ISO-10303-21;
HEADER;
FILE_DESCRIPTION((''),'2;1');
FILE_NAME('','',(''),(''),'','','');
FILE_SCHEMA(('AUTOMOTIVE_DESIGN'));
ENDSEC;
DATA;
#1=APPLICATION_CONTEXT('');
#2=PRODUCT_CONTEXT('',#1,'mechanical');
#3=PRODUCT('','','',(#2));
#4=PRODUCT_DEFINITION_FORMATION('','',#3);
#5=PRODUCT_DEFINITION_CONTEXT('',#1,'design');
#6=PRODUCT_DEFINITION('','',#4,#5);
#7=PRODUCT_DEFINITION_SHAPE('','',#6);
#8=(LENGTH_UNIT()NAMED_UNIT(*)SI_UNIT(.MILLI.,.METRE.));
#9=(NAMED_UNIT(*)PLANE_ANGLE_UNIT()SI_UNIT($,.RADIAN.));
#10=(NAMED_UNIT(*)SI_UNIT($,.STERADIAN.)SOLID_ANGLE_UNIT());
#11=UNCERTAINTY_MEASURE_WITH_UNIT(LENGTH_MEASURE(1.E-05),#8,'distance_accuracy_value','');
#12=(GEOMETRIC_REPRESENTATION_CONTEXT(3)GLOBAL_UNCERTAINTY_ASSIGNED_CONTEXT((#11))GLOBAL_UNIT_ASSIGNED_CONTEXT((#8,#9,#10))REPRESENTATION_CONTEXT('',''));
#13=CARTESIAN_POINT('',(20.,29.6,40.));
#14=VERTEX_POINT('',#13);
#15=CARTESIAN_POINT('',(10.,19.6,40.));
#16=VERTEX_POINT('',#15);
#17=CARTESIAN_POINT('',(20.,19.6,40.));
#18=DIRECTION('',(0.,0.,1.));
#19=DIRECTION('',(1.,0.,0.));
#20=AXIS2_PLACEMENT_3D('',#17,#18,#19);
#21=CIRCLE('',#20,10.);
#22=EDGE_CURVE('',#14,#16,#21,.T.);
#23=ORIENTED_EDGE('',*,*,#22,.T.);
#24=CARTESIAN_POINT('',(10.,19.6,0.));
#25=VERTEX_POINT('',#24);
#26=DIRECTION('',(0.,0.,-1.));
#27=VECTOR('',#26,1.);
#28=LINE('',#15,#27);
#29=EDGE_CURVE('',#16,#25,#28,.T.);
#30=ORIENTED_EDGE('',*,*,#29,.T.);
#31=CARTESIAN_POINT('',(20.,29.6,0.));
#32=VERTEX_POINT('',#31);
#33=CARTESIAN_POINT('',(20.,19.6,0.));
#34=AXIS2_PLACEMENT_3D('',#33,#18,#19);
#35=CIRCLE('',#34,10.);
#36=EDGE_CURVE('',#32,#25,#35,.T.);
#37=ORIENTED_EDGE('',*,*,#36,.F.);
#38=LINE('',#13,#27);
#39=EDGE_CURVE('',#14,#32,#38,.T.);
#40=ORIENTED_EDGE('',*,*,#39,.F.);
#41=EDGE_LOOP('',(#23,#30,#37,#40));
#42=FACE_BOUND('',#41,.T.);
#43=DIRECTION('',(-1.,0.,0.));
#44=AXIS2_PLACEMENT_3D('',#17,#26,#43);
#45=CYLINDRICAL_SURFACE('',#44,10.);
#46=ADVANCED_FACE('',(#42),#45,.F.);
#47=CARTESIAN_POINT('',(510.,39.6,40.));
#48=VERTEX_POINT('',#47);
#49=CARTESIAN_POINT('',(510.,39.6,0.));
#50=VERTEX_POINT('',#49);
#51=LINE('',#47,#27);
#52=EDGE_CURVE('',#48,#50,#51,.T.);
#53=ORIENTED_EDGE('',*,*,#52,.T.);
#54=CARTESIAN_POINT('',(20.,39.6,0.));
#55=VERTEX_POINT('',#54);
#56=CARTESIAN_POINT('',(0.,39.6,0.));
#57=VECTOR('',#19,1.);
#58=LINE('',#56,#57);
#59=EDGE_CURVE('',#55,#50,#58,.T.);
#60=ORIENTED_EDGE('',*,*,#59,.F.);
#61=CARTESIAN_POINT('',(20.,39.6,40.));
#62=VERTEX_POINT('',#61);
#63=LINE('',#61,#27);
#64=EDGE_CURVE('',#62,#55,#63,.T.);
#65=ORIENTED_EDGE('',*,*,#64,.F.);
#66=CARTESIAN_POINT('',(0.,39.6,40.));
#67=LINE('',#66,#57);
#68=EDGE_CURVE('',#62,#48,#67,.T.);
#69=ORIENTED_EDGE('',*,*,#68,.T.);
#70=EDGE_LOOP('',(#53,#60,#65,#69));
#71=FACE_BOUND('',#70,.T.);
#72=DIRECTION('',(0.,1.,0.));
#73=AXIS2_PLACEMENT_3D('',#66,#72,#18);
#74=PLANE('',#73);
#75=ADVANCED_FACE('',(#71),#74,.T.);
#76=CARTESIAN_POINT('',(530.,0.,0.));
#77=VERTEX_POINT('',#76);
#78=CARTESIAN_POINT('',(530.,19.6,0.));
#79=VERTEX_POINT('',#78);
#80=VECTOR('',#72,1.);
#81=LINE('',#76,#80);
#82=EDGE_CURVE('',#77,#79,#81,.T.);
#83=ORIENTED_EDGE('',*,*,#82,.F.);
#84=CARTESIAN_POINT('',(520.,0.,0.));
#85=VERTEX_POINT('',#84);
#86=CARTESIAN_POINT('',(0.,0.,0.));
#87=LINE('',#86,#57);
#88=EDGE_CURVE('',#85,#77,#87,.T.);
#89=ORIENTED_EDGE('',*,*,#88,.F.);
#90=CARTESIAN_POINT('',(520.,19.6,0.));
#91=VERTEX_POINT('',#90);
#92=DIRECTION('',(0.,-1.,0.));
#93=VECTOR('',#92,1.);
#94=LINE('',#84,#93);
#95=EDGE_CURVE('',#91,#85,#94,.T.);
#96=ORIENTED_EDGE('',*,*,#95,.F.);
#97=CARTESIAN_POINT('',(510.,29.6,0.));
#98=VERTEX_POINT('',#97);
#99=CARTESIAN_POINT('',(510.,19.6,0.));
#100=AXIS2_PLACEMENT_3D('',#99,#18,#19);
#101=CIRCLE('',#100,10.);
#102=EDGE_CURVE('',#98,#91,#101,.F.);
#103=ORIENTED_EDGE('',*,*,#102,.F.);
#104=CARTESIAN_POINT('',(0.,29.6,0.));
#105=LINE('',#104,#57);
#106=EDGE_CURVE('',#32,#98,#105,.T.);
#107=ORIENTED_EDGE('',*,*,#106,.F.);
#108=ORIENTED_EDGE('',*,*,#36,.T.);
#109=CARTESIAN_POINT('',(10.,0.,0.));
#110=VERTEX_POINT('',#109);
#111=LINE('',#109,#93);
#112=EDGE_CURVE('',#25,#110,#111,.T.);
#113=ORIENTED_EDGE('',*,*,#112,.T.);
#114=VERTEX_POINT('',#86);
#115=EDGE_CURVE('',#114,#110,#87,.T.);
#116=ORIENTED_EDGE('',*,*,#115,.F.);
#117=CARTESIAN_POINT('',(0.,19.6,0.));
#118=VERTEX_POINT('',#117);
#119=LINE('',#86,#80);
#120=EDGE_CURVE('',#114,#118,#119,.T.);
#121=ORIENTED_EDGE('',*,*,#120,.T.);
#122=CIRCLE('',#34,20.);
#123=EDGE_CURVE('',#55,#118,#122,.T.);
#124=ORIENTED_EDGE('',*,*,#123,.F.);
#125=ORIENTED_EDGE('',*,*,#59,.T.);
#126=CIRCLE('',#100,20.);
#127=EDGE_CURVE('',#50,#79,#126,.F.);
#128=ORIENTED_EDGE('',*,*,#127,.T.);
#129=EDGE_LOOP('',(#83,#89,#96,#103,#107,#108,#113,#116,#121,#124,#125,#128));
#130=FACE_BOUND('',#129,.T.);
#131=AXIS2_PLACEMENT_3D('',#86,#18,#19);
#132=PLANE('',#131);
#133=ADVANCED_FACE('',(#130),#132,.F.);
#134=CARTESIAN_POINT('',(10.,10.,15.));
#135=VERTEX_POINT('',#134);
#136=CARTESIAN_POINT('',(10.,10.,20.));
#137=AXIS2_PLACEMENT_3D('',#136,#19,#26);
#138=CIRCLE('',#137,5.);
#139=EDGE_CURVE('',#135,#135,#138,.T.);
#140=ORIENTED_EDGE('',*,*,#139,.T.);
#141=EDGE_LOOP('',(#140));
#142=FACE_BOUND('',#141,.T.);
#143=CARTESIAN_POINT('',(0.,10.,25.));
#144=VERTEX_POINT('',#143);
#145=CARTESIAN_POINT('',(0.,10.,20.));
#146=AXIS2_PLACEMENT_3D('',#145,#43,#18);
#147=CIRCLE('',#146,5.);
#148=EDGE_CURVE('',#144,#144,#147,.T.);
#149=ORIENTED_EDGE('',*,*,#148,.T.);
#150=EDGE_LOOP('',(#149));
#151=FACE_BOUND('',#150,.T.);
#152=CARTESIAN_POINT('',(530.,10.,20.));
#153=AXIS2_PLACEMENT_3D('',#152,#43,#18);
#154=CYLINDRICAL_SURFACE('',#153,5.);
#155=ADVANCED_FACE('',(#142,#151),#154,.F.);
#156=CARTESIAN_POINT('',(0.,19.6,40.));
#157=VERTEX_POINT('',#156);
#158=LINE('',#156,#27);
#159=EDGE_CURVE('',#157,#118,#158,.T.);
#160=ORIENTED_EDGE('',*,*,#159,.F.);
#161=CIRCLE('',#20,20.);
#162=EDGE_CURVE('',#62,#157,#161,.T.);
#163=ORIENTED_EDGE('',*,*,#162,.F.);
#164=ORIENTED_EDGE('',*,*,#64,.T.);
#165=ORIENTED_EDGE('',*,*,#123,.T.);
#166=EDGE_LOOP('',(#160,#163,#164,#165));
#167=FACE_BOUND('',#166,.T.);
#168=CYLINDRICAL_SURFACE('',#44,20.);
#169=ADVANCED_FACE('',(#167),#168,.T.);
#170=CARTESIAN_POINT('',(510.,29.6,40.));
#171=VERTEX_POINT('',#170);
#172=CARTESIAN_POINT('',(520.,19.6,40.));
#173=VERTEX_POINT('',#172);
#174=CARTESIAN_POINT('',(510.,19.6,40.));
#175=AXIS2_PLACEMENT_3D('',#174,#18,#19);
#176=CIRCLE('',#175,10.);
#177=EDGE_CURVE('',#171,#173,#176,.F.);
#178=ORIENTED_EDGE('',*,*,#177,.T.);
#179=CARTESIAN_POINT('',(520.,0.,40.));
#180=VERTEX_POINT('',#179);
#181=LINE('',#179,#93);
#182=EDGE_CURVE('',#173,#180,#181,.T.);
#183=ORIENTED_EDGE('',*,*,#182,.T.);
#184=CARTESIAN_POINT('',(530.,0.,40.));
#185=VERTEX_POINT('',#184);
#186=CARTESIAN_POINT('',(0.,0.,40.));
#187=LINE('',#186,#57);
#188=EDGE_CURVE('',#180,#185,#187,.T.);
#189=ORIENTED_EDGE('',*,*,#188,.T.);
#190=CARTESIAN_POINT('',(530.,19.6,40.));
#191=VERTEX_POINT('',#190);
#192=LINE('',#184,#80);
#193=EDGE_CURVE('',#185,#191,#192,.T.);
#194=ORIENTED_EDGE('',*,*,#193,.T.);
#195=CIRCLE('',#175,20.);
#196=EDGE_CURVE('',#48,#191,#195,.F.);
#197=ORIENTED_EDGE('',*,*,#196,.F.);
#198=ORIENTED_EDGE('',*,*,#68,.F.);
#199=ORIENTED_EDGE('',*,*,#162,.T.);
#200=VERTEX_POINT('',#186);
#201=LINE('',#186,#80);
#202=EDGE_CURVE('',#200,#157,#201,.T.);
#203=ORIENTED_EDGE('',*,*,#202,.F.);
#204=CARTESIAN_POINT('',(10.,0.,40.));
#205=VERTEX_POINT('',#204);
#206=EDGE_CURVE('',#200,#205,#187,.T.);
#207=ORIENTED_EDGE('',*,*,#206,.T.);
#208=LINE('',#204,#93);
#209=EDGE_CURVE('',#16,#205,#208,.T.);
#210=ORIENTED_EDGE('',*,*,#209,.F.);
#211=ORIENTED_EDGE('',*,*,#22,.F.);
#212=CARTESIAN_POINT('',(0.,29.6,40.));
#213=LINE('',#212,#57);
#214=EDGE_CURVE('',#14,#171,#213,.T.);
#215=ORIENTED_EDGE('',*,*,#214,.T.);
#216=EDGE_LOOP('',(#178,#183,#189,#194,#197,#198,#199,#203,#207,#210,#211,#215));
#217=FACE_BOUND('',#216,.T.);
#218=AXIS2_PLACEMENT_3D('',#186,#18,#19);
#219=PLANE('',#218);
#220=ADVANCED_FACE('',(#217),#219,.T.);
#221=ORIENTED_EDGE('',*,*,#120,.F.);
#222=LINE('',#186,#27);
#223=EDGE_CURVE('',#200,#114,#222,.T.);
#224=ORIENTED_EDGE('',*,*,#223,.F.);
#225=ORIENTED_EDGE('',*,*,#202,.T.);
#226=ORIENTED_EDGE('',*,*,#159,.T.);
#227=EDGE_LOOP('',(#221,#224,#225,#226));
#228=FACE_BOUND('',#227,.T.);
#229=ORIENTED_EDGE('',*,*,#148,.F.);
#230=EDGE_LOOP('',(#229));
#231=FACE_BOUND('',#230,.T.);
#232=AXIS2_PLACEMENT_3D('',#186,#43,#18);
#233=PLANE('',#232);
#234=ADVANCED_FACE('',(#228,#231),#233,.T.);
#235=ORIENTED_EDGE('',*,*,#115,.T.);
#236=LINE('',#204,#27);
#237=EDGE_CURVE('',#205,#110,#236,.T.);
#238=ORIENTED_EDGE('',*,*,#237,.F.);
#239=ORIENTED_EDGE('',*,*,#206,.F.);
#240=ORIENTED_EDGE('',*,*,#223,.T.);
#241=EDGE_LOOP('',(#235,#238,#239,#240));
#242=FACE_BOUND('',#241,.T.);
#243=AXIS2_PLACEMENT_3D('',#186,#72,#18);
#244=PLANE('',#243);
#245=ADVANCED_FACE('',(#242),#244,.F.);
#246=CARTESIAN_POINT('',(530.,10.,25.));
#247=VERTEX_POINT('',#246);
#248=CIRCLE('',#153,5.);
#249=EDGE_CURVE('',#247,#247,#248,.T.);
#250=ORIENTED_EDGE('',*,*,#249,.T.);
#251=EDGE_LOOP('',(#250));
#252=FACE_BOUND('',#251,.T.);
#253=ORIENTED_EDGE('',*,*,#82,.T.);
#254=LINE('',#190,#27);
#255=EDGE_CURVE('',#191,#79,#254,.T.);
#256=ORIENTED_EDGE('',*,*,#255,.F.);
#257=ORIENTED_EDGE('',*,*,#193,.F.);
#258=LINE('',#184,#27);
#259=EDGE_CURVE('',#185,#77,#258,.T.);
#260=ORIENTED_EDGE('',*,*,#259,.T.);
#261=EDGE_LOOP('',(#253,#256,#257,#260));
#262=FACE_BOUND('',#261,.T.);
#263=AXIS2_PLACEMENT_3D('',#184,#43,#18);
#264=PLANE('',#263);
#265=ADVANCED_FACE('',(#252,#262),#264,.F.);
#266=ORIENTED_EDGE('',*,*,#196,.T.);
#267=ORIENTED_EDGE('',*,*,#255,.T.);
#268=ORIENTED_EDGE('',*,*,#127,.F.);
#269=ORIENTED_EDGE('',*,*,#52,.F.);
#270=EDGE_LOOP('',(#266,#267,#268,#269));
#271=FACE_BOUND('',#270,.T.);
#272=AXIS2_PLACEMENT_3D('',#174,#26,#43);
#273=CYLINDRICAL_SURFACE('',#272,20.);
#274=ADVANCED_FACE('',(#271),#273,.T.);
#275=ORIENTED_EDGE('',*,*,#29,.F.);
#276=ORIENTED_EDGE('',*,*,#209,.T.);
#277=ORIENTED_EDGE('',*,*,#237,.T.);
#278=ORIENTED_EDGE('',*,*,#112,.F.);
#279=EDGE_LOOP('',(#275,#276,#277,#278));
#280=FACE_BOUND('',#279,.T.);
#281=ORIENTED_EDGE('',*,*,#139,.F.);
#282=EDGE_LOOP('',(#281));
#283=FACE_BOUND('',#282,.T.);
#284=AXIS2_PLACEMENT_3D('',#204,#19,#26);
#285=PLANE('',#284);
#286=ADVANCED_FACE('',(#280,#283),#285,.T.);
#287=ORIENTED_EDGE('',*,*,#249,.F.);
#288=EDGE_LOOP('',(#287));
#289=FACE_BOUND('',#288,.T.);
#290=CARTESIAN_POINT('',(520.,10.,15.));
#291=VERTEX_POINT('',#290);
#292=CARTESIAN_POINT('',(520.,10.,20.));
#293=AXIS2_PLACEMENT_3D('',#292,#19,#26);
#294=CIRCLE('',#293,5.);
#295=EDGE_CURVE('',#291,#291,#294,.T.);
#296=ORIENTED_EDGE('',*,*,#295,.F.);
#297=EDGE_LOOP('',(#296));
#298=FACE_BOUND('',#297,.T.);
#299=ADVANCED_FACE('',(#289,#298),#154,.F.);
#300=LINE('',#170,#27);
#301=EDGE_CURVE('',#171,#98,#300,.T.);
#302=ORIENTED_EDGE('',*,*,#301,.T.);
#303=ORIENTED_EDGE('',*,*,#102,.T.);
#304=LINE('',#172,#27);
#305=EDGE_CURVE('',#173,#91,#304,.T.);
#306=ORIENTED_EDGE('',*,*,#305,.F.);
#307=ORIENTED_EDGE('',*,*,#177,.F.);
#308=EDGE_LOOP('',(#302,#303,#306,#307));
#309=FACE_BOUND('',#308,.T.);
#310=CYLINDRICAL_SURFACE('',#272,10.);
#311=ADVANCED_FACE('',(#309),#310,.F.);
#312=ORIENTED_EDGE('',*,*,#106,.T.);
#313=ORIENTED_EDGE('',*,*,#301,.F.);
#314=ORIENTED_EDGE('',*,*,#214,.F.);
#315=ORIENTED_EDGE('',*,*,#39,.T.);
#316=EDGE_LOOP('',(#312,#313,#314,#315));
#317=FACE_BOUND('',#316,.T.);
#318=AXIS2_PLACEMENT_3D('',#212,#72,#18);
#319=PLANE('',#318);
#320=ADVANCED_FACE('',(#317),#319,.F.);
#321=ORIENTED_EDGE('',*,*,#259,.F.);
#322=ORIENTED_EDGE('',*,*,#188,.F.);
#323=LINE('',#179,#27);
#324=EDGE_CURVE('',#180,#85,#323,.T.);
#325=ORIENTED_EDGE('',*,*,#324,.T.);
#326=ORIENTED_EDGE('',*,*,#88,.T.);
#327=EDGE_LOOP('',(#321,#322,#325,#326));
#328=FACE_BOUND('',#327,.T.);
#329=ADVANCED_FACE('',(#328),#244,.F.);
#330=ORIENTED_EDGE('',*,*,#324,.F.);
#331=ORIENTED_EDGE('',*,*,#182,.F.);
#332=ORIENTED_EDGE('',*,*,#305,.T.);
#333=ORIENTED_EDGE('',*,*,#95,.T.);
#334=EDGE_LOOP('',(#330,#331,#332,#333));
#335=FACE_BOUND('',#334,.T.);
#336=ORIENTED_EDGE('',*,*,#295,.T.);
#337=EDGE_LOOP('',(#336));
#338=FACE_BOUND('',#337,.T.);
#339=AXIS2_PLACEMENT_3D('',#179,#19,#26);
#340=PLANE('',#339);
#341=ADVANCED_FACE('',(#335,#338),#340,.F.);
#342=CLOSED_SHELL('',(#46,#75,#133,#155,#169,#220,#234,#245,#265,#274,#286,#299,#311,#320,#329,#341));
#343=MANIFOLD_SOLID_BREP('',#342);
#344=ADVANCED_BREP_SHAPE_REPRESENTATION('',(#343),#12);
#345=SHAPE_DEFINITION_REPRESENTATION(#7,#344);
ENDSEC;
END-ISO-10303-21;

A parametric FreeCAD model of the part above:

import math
import FreeCAD as App
import Part
import Sketcher

V = App.Vector

doc = App.newDocument("Part")
body = doc.addObject("PartDesign::Body", "Body")

sketch1 = body.newObject("Sketcher::SketchObject", "Sketch")
sketch1.AttachmentSupport = (doc.getObject("XY_Plane"), [""])
sketch1.MapMode = "FlatFace"
sketch1.addGeometry([
    Part.LineSegment(V(20, 30, 0), V(510, 30, 0)),
    Part.ArcOfCircle(Part.Circle(V(510, 20, 0), V(0, 0, 1), 10), math.radians(0), math.radians(90)),
    Part.LineSegment(V(520, 20, 0), V(520, 0, 0)),
    Part.LineSegment(V(520, 0, 0), V(530, 0, 0)),
    Part.LineSegment(V(530, 0, 0), V(530, 20, 0)),
    Part.ArcOfCircle(Part.Circle(V(510, 20, 0), V(0, 0, 1), 20), math.radians(0), math.radians(90)),
    Part.LineSegment(V(510, 40, 0), V(20, 40, 0)),
    Part.ArcOfCircle(Part.Circle(V(20, 20, 0), V(0, 0, 1), 20), math.radians(90), math.radians(180)),
    Part.LineSegment(V(0, 20, 0), V(0, 0, 0)),
    Part.LineSegment(V(0, 0, 0), V(10, 0, 0)),
    Part.LineSegment(V(10, 0, 0), V(10, 20, 0)),
    Part.ArcOfCircle(Part.Circle(V(20, 20, 0), V(0, 0, 1), 10), math.radians(90), math.radians(180)),
], False)
sketch1.addConstraint([
    Sketcher.Constraint("Tangent", 0, 2, 1, 2),
    Sketcher.Constraint("Tangent", 1, 1, 2, 1),
    Sketcher.Constraint("Coincident", 2, 2, 3, 1),
    Sketcher.Constraint("Coincident", 3, 2, 4, 1),
    Sketcher.Constraint("Tangent", 4, 2, 5, 1),
    Sketcher.Constraint("Tangent", 5, 2, 6, 1),
    Sketcher.Constraint("Tangent", 6, 2, 7, 1),
    Sketcher.Constraint("Tangent", 7, 2, 8, 1),
    Sketcher.Constraint("Coincident", 8, 2, 9, 1),
    Sketcher.Constraint("Coincident", 9, 2, 10, 1),
    Sketcher.Constraint("Tangent", 10, 2, 11, 2),
    Sketcher.Constraint("Tangent", 11, 1, 0, 1),
    Sketcher.Constraint("Horizontal", 0),
    Sketcher.Constraint("Vertical", 2),
    Sketcher.Constraint("Horizontal", 3),
    Sketcher.Constraint("Vertical", 4),
    Sketcher.Constraint("Horizontal", 6),
    Sketcher.Constraint("Vertical", 8),
    Sketcher.Constraint("Horizontal", 9),
    Sketcher.Constraint("Vertical", 10),
    Sketcher.Constraint("Coincident", 8, 2, -1, 1),
    Sketcher.Constraint("Coincident", 5, 3, 1, 3),
    Sketcher.Constraint("Coincident", 11, 3, 7, 3),
    Sketcher.Constraint("Equal", 5, 7),
    Sketcher.Constraint("PointOnObject", 2, 2, -1),
    Sketcher.Constraint("Radius", 1, 10.0),
    Sketcher.Constraint("Radius", 5, 20.0),
    Sketcher.Constraint("DistanceX", 0, 1, 0, 2, 490.0),
    Sketcher.Constraint("DistanceY", 2, 2, 2, 1, 19.6),
])
pad1 = body.newObject("PartDesign::Pad", "Pad")
pad1.Profile = sketch1
pad1.Length = 40

sketch2 = body.newObject("Sketcher::SketchObject", "Sketch001")
sketch2.AttachmentSupport = (doc.getObject("YZ_Plane"), [""])
sketch2.MapMode = "FlatFace"
sketch2.addGeometry(Part.Circle(V(10, 20, 0), V(0, 0, 1), 5), False)
sketch2.addConstraint([
    Sketcher.Constraint("Diameter", 0, 10.0),
    Sketcher.Constraint("DistanceX", -1, 1, 0, 3, 10.0),
    Sketcher.Constraint("DistanceY", -1, 1, 0, 3, 20.0),
])
pocket1 = body.newObject("PartDesign::Pocket", "Pocket")
pocket1.Profile = sketch2
pocket1.Type = "ThroughAll"
pocket1.Reversed = True

doc.recompute()
